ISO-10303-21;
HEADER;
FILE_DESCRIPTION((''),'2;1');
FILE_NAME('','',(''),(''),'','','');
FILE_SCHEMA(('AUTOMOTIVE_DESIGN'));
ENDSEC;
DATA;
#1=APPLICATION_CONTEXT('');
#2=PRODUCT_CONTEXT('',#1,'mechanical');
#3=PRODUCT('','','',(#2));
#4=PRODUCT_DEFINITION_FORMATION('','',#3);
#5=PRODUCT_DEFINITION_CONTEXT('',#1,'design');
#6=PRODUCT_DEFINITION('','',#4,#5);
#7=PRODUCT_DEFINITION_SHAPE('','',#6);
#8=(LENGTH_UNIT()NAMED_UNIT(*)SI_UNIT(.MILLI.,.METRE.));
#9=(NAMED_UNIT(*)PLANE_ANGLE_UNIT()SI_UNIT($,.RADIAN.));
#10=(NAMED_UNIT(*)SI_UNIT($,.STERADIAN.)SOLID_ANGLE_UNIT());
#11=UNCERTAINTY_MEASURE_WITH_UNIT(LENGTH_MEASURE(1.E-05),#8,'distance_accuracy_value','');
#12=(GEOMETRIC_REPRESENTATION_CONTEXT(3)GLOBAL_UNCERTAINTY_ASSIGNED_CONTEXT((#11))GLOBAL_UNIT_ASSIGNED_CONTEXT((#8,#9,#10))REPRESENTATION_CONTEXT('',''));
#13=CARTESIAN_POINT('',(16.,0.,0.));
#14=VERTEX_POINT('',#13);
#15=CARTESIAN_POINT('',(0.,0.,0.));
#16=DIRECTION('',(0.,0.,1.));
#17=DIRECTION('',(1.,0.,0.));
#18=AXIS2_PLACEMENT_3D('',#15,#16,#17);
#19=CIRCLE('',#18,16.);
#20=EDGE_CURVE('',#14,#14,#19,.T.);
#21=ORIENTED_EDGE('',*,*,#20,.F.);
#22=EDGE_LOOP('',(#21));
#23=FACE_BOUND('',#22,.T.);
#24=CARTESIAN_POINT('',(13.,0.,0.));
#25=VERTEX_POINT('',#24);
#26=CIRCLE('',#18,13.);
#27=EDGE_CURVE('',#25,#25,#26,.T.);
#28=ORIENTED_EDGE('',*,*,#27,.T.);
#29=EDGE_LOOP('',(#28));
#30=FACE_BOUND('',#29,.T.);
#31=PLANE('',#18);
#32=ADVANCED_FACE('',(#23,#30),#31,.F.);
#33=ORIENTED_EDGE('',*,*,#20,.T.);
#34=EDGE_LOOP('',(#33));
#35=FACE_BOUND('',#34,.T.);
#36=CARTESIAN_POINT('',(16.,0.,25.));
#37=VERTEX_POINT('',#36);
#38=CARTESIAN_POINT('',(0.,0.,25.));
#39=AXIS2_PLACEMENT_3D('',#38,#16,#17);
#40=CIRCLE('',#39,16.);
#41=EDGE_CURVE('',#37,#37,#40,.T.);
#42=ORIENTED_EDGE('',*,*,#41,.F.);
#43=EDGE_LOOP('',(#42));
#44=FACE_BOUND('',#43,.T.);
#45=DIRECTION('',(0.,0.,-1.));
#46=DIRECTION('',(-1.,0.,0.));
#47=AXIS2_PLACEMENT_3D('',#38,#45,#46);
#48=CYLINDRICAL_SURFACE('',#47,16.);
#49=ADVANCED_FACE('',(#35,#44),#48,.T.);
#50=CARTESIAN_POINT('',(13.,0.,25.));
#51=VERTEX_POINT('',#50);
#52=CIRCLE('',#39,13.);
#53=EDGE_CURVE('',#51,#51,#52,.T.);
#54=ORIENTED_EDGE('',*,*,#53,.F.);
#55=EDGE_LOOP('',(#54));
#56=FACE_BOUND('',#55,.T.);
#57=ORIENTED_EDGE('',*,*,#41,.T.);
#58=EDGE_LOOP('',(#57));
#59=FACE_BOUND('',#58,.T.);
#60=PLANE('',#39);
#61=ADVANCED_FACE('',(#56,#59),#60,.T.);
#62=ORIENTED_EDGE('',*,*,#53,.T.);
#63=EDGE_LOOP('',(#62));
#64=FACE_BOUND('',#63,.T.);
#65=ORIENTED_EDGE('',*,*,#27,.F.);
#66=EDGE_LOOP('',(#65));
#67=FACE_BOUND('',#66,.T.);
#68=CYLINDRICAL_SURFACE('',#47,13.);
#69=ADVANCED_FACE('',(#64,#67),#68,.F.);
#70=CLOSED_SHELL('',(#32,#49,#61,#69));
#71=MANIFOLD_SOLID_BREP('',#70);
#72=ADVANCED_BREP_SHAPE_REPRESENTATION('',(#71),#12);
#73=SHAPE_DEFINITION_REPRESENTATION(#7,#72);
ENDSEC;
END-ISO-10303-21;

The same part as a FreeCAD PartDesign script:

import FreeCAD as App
import Part
import Sketcher

V = App.Vector
Q = App.Units.Quantity

doc = App.newDocument("Part")
body = doc.addObject("PartDesign::Body", "Body")

# Sketch on XY plane
sketch1 = body.newObject("Sketcher::SketchObject", "Sketch")
sketch1.AttachmentSupport = (doc.getObject("XY_Plane"), [""])
sketch1.MapMode = "FlatFace"
sketch1.addGeometry(Part.Circle(V(0, 0, 0), V(0, 0, 1), 16), False)
sketch1.addGeometry(Part.Circle(V(0, 0, 0), V(0, 0, 1), 13), False)
sketch1.addConstraint(Sketcher.Constraint("Coincident", 0, 3, -1, 1))
sketch1.addConstraint(Sketcher.Constraint("Coincident", 1, 3, -1, 1))
sketch1.addConstraint(Sketcher.Constraint("Diameter", 0, Q("32 mm")))
sketch1.addConstraint(Sketcher.Constraint("Diameter", 1, Q("26 mm")))
pad1 = body.newObject("PartDesign::Pad", "Pad")
pad1.Profile = sketch1
pad1.Length = 25

doc.recompute()
